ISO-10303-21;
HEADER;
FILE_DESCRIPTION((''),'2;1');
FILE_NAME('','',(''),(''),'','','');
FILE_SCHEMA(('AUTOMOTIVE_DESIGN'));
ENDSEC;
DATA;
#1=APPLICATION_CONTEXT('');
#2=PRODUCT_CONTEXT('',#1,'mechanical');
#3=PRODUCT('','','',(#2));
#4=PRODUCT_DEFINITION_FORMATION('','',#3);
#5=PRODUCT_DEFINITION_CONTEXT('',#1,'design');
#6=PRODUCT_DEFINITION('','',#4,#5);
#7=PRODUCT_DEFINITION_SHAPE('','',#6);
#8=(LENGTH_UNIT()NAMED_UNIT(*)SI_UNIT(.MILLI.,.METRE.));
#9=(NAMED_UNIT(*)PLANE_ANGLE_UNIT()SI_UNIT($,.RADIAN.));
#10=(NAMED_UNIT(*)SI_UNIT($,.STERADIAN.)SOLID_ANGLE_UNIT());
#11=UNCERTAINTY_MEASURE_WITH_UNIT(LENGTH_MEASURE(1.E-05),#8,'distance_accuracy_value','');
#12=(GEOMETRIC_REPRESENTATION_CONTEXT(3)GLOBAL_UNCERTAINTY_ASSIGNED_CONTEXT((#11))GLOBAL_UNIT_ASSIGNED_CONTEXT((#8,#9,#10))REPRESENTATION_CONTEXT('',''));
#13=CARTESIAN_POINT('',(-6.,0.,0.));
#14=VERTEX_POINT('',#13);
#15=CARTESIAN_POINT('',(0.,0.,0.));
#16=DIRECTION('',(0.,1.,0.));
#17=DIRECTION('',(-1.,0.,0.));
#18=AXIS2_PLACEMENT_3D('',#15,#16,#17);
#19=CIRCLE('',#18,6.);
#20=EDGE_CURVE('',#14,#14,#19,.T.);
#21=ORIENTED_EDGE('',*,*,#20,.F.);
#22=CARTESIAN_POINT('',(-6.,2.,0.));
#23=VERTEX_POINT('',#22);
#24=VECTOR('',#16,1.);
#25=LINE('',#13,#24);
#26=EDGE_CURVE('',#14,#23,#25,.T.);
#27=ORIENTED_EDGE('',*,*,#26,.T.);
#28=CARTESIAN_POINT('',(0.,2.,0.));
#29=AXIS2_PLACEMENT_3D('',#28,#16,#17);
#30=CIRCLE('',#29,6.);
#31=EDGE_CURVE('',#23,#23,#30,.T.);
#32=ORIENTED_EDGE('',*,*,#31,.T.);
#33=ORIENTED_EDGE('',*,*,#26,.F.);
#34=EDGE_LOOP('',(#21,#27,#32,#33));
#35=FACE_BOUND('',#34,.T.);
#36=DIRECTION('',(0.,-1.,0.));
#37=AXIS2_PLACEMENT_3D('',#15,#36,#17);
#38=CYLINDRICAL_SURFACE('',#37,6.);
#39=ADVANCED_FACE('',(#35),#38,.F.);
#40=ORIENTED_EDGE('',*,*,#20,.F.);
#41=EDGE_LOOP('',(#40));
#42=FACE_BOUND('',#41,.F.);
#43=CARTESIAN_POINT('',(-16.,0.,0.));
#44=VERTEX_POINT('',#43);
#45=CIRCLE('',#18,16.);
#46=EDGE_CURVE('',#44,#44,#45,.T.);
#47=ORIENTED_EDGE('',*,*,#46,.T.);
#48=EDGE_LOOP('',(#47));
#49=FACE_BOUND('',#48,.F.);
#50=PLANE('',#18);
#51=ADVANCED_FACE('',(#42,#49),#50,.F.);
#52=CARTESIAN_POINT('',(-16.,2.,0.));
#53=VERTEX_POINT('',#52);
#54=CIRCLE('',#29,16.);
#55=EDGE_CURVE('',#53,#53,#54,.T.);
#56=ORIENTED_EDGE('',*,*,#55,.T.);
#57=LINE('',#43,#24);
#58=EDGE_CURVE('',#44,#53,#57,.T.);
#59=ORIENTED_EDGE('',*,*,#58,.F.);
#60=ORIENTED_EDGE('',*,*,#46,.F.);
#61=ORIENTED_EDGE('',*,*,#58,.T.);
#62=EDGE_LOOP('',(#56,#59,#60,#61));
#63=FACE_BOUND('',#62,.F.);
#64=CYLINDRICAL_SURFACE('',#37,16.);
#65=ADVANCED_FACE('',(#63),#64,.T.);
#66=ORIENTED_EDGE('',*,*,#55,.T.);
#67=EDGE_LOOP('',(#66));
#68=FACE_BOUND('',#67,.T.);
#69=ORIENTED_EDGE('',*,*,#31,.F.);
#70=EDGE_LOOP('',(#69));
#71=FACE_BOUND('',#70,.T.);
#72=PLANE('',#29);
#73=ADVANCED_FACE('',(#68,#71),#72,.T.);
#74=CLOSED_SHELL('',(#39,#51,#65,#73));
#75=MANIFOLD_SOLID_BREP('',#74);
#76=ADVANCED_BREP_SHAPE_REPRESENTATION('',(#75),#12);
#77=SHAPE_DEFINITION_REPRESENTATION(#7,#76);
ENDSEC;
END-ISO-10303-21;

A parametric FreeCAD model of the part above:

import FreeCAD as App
import Part
import Sketcher

doc = App.newDocument("Part")
body = doc.addObject("PartDesign::Body", "Body")

sketch1 = body.newObject("Sketcher::SketchObject", "Sketch")
sketch1.AttachmentSupport = (doc.getObject("XZ_Plane"), [""])
sketch1.MapMode = "FlatFace"
sketch1.addGeometry([
    Part.Circle(App.Vector(0, 0, 0), App.Vector(0, 0, 1), 16),
    Part.Circle(App.Vector(0, 0, 0), App.Vector(0, 0, 1), 6),
], False)
sketch1.addConstraint([
    Sketcher.Constraint("Coincident", 0, 3, -1, 1),
    Sketcher.Constraint("Coincident", 1, 3, -1, 1),
    Sketcher.Constraint("Diameter", 1, 12.0),
    Sketcher.Constraint("Diameter", 0, 32.0),
])
pad1 = body.newObject("PartDesign::Pad", "Pad")
pad1.Profile = sketch1
pad1.Length = 2
pad1.Reversed = True

doc.recompute()
